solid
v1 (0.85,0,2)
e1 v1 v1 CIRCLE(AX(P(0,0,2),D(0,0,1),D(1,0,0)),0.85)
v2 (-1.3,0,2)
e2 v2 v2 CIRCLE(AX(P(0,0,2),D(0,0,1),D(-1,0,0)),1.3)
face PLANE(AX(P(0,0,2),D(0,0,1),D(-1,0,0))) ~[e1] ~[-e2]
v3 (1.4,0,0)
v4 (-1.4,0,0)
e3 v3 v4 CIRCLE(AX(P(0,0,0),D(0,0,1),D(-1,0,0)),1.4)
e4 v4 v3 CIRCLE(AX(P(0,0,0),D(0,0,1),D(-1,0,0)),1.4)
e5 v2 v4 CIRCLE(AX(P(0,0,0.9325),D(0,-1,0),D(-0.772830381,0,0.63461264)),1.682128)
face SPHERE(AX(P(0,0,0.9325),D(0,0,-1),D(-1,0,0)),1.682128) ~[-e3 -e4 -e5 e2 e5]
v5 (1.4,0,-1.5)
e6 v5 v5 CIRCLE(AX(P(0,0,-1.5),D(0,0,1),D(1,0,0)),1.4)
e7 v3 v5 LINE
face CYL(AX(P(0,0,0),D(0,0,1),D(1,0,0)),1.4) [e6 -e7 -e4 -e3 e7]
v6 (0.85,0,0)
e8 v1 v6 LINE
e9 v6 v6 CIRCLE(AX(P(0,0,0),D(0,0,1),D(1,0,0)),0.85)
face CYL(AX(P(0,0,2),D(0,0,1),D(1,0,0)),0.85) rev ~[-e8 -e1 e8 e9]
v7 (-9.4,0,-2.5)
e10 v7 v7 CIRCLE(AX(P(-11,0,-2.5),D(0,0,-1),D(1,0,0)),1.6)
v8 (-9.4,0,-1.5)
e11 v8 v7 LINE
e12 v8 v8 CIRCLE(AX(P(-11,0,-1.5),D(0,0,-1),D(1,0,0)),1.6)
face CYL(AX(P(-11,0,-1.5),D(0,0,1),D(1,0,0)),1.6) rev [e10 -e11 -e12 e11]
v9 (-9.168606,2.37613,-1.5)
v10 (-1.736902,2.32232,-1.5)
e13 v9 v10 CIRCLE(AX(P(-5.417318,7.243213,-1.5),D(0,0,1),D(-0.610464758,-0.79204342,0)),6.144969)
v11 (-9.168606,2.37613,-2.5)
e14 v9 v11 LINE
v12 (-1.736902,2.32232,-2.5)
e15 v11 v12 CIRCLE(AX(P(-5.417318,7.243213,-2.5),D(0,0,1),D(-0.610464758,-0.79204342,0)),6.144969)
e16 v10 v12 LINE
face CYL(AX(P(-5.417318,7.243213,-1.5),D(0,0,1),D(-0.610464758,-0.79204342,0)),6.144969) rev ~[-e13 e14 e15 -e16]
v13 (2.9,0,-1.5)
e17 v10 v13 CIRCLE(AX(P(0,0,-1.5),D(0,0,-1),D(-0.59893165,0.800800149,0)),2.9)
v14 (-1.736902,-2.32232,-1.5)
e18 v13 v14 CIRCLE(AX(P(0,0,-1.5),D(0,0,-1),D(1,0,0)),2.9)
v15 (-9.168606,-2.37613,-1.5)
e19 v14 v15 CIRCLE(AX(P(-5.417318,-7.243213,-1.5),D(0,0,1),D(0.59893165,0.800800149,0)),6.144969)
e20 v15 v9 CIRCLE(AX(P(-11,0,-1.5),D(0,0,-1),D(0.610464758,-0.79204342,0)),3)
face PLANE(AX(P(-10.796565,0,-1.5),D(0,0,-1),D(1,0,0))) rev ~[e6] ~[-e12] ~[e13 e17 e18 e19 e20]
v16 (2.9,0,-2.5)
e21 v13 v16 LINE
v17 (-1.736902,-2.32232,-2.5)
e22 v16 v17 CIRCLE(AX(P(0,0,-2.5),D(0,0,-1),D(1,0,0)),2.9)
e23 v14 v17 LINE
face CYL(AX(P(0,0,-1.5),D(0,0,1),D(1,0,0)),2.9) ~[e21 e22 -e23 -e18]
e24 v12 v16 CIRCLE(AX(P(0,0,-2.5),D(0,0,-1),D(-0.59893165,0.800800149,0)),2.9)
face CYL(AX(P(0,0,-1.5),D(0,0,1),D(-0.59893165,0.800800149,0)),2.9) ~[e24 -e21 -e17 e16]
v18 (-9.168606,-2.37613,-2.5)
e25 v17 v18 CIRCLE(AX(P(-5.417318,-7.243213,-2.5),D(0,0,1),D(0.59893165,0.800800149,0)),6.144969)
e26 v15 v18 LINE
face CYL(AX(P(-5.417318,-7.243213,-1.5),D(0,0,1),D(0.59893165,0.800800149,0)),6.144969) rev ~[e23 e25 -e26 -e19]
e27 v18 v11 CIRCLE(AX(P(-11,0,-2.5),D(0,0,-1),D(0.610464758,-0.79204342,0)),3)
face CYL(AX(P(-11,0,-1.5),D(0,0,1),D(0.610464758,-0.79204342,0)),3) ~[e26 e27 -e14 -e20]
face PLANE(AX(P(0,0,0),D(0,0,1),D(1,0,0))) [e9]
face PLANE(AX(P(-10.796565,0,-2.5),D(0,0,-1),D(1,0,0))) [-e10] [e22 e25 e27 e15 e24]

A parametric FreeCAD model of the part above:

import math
import FreeCAD as App
import Part
import Sketcher
Q = App.Units.Quantity

doc = App.newDocument("Part")
body = doc.addObject("PartDesign::Body", "Body")

sketch1 = body.newObject("Sketcher::SketchObject", "Sketch")
sketch1.AttachmentSupport = (doc.getObject("XZ_Plane"), [""])
sketch1.MapMode = "FlatFace"
sketch1.addGeometry([
    Part.LineSegment(App.Vector(-1.4, 0, 0), App.Vector(0, 0, 0)),
    Part.LineSegment(App.Vector(0, 0, 0), App.Vector(0, 2, 0)),
    Part.LineSegment(App.Vector(0, 2, 0), App.Vector(-1.3, 2, 0)),
    Part.ArcOfCircle(Part.Circle(App.Vector(0, 0.9, 0), App.Vector(0, 0, 1), 1.7), math.radians(141), math.radians(214)),
], False)
sketch1.addConstraint([
    Sketcher.Constraint("Coincident", 0, 2, 1, 1),
    Sketcher.Constraint("Coincident", 1, 2, 2, 1),
    Sketcher.Constraint("Coincident", 2, 2, 3, 1),
    Sketcher.Constraint("Coincident", 3, 2, 0, 1),
    Sketcher.Constraint("Horizontal", 0),
    Sketcher.Constraint("Vertical", 1),
    Sketcher.Constraint("Horizontal", 2),
    Sketcher.Constraint("Coincident", 0, 2, -1, 1),
    Sketcher.Constraint("PointOnObject", 3, 3, -2),
    Sketcher.Constraint("DistanceY", 1, 1, 1, 2, Q("2 mm")),
    Sketcher.Constraint("DistanceX", 0, 1, 0, 2, Q("1.4 mm")),
    Sketcher.Constraint("DistanceX", 2, 2, 2, 1, Q("1.3 mm")),
])
revolution = body.newObject("PartDesign::Revolution", "Revolution")
revolution.Profile = sketch1
revolution.ReferenceAxis = (sketch1, ["V_Axis"])
revolution.Angle = 360

sketch2 = body.newObject("Sketcher::SketchObject", "Sketch001")
sketch2.AttachmentSupport = (doc.getObject("XY_Plane"), [""])
sketch2.MapMode = "FlatFace"
sketch2.addGeometry(Part.Circle(App.Vector(0, 0, 0), App.Vector(0, 0, 1), 1.4), False)
sketch2.addConstraint([
    Sketcher.Constraint("Coincident", 0, 3, -1, 1),
    Sketcher.Constraint("Diameter", 0, Q("2.8 mm")),
])
pad1 = body.newObject("PartDesign::Pad", "Pad")
pad1.Profile = sketch2
pad1.Length = 1.5
pad1.Reversed = True

sketch3 = body.newObject("Sketcher::SketchObject", "Sketch002")
sketch3.AttachmentSupport = (doc.getObject("XY_Plane"), [""])
sketch3.MapMode = "FlatFace"
sketch3.AttachmentOffset = App.Placement(App.Vector(0, 0, -1.5), App.Rotation())
sketch3.addGeometry([
    Part.ArcOfCircle(Part.Circle(App.Vector(-11, 0, 0), App.Vector(0, 0, 1), 3), math.radians(52), math.radians(308)),
    Part.ArcOfCircle(Part.Circle(App.Vector(-5.4, 7.2, 0), App.Vector(0, 0, 1), 6.1), math.radians(-128), math.radians(-53)),
    Part.ArcOfCircle(Part.Circle(App.Vector(0, 0, 0), App.Vector(0, 0, 1), 2.9), math.radians(0), math.radians(127)),
    Part.ArcOfCircle(Part.Circle(App.Vector(0, 0, 0), App.Vector(0, 0, 1), 2.9), math.radians(-127), math.radians(0)),
    Part.ArcOfCircle(Part.Circle(App.Vector(-5.4, -7.2, 0), App.Vector(0, 0, 1), 6.1), math.radians(53), math.radians(128)),
    Part.Circle(App.Vector(-11, 0, 0), App.Vector(0, 0, 1), 1.6),
], False)
sketch3.addConstraint([
    Sketcher.Constraint("Tangent", 0, 1, 1, 1),
    Sketcher.Constraint("Tangent", 1, 2, 2, 2),
    Sketcher.Constraint("Tangent", 2, 1, 3, 2),
    Sketcher.Constraint("Tangent", 3, 1, 4, 1),
    Sketcher.Constraint("Tangent", 4, 2, 0, 2),
    Sketcher.Constraint("Coincident", 2, 3, -1, 1),
    Sketcher.Constraint("Coincident", 5, 3, 0, 3),
    Sketcher.Constraint("Equal", 2, 3),
    Sketcher.Constraint("Equal", 1, 4),
    Sketcher.Constraint("PointOnObject", 0, 3, -1),
    Sketcher.Constraint("PointOnObject", 2, 1, -1),
    Sketcher.Constraint("Radius", 0, Q("3 mm")),
    Sketcher.Constraint("Diameter", 5, Q("3.2 mm")),
    Sketcher.Constraint("Radius", 2, Q("2.9 mm")),
    Sketcher.Constraint("DistanceX", 0, 3, -1, 1, Q("11 mm")),
    Sketcher.Constraint("Radius", 1, Q("6.144969 mm")),
])
pad2 = body.newObject("PartDesign::Pad", "Pad001")
pad2.Profile = sketch3
pad2.Length = 1
pad2.Reversed = True

sketch4 = body.newObject("Sketcher::SketchObject", "Sketch003")
sketch4.AttachmentSupport = (doc.getObject("XY_Plane"), [""])
sketch4.MapMode = "FlatFace"
sketch4.AttachmentOffset = App.Placement(App.Vector(0, 0, 2), App.Rotation())
sketch4.addGeometry(Part.Circle(App.Vector(0, 0, 0), App.Vector(0, 0, 1), 0.8), False)
sketch4.addConstraint([
    Sketcher.Constraint("Coincident", 0, 3, -1, 1),
    Sketcher.Constraint("Diameter", 0, Q("1.7 mm")),
])
pocket1 = body.newObject("PartDesign::Pocket", "Pocket")
pocket1.Profile = sketch4
pocket1.Length = 2

doc.recompute()
